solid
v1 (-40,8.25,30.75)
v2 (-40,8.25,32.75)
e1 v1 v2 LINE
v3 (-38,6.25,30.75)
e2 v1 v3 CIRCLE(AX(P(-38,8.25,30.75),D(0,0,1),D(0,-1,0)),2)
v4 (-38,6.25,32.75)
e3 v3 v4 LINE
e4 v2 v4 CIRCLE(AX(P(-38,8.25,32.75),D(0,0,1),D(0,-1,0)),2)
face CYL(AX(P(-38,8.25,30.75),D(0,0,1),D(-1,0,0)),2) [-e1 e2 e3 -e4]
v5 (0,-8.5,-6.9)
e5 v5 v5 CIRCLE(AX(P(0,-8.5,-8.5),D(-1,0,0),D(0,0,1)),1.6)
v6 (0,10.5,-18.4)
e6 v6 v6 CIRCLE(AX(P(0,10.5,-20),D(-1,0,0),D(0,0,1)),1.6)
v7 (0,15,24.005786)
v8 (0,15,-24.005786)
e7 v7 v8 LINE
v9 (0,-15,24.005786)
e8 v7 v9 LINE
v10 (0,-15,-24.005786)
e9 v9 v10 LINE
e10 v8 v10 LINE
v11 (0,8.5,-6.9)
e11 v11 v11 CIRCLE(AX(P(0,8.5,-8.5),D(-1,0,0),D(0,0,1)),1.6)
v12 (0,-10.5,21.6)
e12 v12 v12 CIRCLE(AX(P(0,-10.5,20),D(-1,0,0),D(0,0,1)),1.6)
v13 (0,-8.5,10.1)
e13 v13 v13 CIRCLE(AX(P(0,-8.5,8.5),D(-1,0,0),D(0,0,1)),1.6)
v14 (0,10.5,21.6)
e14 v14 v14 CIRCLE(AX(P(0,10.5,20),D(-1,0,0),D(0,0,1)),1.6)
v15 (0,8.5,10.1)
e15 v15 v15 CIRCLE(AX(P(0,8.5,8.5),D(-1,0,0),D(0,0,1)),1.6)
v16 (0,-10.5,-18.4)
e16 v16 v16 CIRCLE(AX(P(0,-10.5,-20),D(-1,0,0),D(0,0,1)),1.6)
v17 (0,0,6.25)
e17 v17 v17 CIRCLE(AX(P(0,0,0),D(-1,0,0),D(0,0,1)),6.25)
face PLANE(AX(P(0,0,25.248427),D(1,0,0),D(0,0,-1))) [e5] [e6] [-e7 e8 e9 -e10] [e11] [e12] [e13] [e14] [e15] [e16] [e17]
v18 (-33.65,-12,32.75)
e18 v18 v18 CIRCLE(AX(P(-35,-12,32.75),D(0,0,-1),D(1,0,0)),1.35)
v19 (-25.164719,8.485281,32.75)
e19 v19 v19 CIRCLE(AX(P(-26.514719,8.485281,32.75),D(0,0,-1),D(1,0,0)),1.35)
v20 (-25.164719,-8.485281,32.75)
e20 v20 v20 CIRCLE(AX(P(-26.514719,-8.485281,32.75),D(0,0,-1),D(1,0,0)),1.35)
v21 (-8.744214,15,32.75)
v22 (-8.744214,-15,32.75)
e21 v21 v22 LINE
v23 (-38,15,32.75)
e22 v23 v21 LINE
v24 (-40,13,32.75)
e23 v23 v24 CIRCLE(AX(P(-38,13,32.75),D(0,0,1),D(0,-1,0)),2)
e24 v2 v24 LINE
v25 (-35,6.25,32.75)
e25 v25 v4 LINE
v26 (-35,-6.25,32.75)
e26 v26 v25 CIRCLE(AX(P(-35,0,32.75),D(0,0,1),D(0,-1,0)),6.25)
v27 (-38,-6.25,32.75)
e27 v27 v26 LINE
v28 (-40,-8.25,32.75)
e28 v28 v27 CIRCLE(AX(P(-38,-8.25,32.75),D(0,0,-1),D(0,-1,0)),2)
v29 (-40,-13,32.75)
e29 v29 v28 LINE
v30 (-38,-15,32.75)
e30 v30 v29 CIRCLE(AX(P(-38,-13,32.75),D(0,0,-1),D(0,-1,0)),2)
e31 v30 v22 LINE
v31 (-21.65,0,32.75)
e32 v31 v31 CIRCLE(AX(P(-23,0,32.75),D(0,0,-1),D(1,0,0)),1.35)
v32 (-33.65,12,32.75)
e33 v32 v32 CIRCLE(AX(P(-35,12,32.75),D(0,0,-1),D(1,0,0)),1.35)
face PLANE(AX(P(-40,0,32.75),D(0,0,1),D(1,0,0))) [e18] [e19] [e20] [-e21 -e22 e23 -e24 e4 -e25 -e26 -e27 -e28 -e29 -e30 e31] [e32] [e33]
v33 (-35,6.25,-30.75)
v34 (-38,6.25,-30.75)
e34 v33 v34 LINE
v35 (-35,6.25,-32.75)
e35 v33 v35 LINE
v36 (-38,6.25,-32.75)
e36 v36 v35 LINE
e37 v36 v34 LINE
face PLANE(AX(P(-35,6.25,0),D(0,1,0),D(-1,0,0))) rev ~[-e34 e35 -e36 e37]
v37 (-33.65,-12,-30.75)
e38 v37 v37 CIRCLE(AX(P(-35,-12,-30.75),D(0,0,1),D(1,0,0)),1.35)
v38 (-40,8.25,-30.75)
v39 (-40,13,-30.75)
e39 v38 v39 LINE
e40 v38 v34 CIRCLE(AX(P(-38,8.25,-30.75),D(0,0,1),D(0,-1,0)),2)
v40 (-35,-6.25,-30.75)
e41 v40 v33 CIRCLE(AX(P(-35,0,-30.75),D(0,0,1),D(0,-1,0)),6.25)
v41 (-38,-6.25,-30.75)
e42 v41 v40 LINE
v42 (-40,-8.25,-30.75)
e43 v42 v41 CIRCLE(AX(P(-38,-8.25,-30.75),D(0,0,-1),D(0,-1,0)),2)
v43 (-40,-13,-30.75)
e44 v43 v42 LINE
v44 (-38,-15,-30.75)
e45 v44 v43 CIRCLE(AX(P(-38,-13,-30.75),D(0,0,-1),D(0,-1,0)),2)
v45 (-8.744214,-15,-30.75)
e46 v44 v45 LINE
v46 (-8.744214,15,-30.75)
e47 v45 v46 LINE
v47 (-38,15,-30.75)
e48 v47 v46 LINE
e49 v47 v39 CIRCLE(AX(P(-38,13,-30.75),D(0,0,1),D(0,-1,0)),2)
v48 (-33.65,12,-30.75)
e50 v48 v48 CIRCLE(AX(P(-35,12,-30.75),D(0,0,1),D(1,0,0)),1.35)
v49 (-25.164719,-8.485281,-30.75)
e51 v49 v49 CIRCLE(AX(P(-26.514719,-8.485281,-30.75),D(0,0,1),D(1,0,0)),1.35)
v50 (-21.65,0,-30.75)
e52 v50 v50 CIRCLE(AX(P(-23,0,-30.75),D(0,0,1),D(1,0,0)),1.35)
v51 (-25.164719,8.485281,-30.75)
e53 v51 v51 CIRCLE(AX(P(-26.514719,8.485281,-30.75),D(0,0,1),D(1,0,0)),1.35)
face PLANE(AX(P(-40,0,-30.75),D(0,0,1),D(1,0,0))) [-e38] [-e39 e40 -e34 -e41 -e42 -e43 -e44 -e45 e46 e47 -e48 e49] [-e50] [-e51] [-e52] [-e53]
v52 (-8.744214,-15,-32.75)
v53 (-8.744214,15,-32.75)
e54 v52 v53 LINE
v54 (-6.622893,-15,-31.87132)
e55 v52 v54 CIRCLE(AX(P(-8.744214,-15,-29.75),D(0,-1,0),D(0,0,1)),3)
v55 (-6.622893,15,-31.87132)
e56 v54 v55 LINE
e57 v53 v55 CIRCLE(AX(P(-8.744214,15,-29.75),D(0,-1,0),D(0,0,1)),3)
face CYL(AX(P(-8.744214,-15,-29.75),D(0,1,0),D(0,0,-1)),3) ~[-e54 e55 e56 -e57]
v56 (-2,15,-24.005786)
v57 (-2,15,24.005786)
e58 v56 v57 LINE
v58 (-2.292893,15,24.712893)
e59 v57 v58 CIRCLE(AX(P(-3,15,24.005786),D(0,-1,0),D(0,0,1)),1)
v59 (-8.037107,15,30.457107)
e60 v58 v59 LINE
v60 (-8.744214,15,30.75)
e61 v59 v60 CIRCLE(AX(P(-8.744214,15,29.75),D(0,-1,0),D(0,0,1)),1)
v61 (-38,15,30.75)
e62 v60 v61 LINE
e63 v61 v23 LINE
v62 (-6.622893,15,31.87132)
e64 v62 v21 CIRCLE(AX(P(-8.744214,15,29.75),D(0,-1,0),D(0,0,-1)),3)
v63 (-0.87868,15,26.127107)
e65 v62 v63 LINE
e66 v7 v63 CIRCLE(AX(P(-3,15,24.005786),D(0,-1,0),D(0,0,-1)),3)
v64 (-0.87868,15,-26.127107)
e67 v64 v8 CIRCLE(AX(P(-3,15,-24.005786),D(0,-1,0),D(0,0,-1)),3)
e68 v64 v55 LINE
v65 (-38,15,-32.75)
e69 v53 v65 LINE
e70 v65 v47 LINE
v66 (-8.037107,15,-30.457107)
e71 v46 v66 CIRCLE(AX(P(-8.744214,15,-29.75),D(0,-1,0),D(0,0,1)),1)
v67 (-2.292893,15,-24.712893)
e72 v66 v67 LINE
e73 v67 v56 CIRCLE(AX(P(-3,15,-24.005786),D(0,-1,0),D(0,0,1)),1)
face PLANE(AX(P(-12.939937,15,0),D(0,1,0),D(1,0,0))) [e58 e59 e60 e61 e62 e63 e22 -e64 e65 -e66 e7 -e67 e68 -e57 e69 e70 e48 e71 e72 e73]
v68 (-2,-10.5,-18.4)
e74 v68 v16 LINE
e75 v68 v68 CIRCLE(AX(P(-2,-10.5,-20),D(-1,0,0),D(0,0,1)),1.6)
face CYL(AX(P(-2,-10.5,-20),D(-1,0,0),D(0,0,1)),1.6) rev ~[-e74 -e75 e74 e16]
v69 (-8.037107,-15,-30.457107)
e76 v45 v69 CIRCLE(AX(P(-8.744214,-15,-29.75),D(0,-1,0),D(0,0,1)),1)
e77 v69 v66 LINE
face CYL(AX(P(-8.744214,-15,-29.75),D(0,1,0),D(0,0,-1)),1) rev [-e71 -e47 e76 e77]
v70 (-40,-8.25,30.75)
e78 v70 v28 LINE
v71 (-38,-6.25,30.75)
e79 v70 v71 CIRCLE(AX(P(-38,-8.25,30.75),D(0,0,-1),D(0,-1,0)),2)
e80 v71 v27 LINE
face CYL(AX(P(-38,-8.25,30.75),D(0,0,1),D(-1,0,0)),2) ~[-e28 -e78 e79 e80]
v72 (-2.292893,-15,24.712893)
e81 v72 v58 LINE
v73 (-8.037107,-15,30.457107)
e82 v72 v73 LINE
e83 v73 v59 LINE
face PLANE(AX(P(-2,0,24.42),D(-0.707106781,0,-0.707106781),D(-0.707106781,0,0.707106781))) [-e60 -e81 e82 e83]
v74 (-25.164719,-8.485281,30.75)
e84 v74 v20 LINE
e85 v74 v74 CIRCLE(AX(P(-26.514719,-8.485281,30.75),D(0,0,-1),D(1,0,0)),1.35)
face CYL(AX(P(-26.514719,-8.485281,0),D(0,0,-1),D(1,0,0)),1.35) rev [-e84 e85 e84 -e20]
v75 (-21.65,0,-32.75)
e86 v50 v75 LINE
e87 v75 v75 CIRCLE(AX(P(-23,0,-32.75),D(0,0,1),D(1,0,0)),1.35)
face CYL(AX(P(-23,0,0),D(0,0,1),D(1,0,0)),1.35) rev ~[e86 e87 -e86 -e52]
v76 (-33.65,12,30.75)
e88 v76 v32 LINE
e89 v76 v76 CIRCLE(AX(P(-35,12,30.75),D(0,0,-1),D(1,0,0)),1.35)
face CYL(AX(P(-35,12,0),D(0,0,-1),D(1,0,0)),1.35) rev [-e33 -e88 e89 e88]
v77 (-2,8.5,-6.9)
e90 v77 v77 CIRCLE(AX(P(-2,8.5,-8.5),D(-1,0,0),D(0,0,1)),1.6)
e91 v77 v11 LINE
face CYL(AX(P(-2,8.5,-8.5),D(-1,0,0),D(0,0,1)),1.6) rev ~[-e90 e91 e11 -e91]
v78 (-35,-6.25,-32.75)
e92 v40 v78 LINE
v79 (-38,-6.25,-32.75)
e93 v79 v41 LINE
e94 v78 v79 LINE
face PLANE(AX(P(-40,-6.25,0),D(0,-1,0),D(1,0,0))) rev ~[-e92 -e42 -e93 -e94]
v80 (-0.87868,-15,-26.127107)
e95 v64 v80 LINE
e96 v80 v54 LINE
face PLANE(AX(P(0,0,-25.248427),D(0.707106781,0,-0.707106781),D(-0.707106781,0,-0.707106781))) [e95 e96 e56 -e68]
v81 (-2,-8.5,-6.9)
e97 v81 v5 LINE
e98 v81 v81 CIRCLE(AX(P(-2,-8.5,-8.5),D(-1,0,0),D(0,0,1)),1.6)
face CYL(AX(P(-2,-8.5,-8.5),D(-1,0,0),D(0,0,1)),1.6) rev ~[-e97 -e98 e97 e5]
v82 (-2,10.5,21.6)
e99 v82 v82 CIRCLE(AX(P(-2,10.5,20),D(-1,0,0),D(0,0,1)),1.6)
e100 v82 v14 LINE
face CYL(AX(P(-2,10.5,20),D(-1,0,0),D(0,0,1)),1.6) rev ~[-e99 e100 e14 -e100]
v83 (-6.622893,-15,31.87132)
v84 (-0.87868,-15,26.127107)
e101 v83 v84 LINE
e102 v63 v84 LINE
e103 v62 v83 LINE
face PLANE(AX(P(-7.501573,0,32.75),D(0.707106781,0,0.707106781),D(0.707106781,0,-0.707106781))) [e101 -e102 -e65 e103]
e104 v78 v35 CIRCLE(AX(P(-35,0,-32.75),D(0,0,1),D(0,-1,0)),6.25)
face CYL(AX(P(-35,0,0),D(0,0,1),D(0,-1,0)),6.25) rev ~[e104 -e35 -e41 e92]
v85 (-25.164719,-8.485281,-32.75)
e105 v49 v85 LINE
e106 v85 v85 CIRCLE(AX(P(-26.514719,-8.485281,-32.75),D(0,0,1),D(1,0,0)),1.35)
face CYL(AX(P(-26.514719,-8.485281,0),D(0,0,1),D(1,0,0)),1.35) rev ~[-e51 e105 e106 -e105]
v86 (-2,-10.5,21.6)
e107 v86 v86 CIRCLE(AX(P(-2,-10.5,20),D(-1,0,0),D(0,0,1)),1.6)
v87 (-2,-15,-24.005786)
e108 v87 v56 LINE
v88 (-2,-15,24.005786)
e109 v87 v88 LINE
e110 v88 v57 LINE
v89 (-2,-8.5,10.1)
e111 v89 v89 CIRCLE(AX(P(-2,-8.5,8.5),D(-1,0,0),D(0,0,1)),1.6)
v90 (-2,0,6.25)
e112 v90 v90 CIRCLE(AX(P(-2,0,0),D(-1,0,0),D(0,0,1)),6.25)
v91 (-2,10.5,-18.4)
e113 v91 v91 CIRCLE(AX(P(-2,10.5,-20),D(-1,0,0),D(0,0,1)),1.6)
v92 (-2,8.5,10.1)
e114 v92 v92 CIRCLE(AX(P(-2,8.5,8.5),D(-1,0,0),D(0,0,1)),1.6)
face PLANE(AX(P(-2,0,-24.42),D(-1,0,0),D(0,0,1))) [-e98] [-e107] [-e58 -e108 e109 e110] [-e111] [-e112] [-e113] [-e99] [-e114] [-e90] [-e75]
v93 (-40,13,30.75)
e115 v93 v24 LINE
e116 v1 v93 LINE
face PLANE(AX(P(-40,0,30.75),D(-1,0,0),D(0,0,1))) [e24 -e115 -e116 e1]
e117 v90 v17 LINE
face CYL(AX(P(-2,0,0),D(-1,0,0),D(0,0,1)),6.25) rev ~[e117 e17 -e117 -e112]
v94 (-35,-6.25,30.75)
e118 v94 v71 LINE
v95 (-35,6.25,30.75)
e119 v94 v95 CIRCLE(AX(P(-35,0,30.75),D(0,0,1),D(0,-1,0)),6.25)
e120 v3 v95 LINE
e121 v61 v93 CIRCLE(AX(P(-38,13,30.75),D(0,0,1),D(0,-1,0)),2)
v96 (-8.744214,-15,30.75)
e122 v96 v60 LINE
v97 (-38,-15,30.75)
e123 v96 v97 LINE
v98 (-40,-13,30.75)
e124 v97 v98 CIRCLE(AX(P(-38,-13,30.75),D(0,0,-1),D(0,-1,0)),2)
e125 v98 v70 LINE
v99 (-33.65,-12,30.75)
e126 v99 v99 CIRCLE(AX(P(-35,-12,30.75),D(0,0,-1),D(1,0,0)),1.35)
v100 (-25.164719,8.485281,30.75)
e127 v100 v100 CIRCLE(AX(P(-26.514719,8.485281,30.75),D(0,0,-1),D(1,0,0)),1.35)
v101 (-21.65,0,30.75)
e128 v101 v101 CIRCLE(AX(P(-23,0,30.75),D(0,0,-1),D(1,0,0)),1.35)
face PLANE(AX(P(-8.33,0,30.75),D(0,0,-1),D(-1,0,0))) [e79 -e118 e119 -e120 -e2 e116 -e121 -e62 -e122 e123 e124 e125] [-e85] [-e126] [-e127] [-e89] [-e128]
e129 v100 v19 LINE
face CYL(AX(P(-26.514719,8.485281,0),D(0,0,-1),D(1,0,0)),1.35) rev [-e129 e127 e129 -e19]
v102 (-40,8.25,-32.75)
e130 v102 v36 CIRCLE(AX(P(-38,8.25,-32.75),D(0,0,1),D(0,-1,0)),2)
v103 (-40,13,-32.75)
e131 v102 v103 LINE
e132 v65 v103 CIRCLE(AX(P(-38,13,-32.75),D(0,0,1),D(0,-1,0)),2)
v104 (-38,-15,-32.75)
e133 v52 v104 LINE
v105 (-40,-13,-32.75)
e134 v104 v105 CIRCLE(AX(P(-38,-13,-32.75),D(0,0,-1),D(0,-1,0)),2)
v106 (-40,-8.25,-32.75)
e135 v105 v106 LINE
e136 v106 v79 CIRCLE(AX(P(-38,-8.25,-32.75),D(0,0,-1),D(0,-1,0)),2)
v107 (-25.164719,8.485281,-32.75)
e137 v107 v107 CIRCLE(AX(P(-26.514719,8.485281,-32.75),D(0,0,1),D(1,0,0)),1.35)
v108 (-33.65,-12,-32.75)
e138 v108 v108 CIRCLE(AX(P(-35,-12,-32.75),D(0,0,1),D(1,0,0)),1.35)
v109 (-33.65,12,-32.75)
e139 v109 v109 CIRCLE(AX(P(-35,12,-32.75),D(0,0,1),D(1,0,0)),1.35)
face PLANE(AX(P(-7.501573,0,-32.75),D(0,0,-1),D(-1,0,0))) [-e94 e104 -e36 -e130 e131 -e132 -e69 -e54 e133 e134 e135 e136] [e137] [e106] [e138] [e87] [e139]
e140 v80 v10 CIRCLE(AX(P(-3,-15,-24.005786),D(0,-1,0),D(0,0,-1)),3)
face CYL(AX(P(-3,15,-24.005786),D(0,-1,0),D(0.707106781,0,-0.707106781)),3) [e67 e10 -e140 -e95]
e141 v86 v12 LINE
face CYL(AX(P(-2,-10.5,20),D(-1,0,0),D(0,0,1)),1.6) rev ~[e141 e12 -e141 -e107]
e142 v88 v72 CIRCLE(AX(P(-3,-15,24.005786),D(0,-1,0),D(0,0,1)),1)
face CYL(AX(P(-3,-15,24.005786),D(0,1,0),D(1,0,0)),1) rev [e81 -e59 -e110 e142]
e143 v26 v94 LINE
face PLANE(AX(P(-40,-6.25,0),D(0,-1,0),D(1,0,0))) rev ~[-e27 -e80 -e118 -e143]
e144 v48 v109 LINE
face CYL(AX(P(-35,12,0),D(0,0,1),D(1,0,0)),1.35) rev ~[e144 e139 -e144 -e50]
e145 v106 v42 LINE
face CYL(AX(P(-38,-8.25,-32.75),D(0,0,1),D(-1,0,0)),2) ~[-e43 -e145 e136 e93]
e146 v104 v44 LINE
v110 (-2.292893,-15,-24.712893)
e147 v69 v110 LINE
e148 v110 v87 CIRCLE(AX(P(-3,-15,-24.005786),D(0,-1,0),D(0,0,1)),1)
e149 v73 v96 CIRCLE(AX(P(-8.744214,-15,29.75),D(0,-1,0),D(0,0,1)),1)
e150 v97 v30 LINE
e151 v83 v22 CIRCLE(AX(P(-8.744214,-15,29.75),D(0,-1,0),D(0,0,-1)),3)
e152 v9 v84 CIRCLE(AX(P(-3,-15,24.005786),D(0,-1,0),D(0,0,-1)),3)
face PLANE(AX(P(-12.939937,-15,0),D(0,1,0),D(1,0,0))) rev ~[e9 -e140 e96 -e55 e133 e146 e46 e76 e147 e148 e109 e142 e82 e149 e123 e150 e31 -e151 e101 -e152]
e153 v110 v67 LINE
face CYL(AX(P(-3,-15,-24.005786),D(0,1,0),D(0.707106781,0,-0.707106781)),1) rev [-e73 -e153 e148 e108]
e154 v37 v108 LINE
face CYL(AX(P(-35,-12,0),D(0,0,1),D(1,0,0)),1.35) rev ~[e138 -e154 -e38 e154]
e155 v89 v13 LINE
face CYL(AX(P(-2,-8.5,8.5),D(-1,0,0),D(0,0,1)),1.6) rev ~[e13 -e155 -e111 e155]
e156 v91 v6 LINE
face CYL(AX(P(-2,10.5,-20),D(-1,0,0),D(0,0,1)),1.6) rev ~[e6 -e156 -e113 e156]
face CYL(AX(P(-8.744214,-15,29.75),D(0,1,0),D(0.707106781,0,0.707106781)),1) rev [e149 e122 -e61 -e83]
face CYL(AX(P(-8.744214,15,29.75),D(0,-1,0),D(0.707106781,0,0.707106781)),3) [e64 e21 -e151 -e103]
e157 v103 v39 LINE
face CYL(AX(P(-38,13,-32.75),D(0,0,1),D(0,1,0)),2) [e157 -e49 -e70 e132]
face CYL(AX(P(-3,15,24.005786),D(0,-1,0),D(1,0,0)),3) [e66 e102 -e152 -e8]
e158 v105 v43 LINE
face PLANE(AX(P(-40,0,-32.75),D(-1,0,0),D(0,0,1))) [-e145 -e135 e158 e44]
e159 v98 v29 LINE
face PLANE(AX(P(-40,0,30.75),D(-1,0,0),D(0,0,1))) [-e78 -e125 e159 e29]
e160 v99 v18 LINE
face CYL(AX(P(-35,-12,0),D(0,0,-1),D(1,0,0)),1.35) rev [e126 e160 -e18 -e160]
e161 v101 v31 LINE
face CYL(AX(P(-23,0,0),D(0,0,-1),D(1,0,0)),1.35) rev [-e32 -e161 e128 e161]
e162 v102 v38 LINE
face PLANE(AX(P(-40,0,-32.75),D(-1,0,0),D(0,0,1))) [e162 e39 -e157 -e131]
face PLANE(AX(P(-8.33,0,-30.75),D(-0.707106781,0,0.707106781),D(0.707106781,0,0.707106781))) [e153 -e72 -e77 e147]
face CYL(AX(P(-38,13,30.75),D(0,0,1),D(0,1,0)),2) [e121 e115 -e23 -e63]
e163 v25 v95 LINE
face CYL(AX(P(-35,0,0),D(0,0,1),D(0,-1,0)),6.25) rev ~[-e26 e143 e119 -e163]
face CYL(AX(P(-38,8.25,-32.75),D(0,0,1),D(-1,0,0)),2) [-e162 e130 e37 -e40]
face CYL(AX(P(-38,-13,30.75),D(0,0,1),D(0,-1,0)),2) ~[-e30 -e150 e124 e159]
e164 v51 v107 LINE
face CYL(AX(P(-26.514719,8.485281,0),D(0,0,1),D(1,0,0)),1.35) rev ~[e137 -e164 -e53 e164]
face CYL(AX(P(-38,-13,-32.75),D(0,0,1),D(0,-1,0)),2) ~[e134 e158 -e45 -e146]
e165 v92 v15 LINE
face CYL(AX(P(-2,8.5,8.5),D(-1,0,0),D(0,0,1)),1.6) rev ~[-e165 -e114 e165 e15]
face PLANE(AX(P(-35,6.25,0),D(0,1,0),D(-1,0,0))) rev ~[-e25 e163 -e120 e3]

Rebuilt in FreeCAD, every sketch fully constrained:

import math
import FreeCAD as App
import Part
import Sketcher

V = App.Vector


def edges_at(feature, points):
    """Names of the edges that pass closest to the given points."""
    edges = feature.Shape.Edges
    near = lambda p: min(range(len(edges)), key=lambda i: edges[i].distToShape(Part.Vertex(*p))[0])
    return sorted({f"Edge{near(p) + 1}" for p in points})


def add_polygon(sketch, points):
    """Adds a closed chain of lines whose ends are joined by coincident constraints."""
    first, n = sketch.GeometryCount, len(points)
    for a, b in zip(points, points[1:] + points[:1]):
        sketch.addGeometry(Part.LineSegment(App.Vector(*a, 0), App.Vector(*b, 0)), False)
    for i in range(n):
        sketch.addConstraint(Sketcher.Constraint("Coincident", first + i, 2, first + (i + 1) % n, 1))

doc = App.newDocument("Part")
body = doc.addObject("PartDesign::Body", "Body")

sketch1 = body.newObject("Sketcher::SketchObject", "Sketch")
sketch1.AttachmentSupport = (doc.getObject("XZ_Plane"), [""])
sketch1.MapMode = "FlatFace"
add_polygon(sketch1, [(0, -25.2), (-7.5, -32.8), (-40, -32.8), (-40, -30.8), (-8.3, -30.8), (-2, -24.4), (-2, 24.4), (-8.3, 30.8), (-40, 30.8), (-40, 32.8), (-7.5, 32.8), (0, 25.2)])
sketch1.addConstraint([
    Sketcher.Constraint("Horizontal", 1),
    Sketcher.Constraint("Vertical", 2),
    Sketcher.Constraint("Horizontal", 3),
    Sketcher.Constraint("Vertical", 5),
    Sketcher.Constraint("Horizontal", 7),
    Sketcher.Constraint("Vertical", 8),
    Sketcher.Constraint("Horizontal", 9),
    Sketcher.Constraint("Vertical", 11),
    Sketcher.Constraint("Symmetric", 10, 2, 11, 2, -1, 1),
    Sketcher.Constraint("Symmetric", 3, 2, 6, 2, -1),
    Sketcher.Constraint("Symmetric", 1, 2, 8, 2, -1),
    Sketcher.Constraint("Parallel", 0, 4),
    Sketcher.Constraint("Perpendicular", 4, 6),
    Sketcher.Constraint("Parallel", 6, 10),
    Sketcher.Constraint("Vertical", 0, 2, 9, 2),
    Sketcher.Constraint("DistanceY", 2, 1, 2, 2, 2.0),
    Sketcher.Constraint("DistanceX", 1, 2, -1, 1, 40.0),
    Sketcher.Constraint("DistanceX", 4, 2, -1, 1, 2.0),
    Sketcher.Constraint("DistanceX", 3, 1, 3, 2, 31.67),
    Sketcher.Constraint("DistanceY", 5, 1, 5, 2, 48.84),
    Sketcher.Constraint("DistanceX", 1, 2, 1, 1, 32.498427),
])
pad1 = body.newObject("PartDesign::Pad", "Pad")
pad1.Profile = sketch1
pad1.Length = 30
pad1.Midplane = True

sketch2 = body.newObject("Sketcher::SketchObject", "Sketch001")
sketch2.AttachmentSupport = (doc.getObject("YZ_Plane"), [""])
sketch2.MapMode = "FlatFace"
sketch2.AttachmentOffset = App.Placement(V(0, 0, -2), App.Rotation())
sketch2.addGeometry([
    Part.Circle(V(10.5, -20, 0), V(0, 0, 1), 1.6),
    Part.Circle(V(8.5, -8.5, 0), V(0, 0, 1), 1.6),
    Part.Circle(V(8.5, 8.5, 0), V(0, 0, 1), 1.6),
    Part.Circle(V(10.5, 20, 0), V(0, 0, 1), 1.6),
    Part.Circle(V(-10.5, 20, 0), V(0, 0, 1), 1.6),
    Part.Circle(V(-8.5, 8.5, 0), V(0, 0, 1), 1.6),
    Part.Circle(V(-8.5, -8.5, 0), V(0, 0, 1), 1.6),
    Part.Circle(V(-10.5, -20, 0), V(0, 0, 1), 1.6),
    Part.Circle(V(0, 0, 0), V(0, 0, 1), 6.2),
], False)
sketch2.addConstraint([
    Sketcher.Constraint("Coincident", 8, 3, -1, 1),
    Sketcher.Constraint("Equal", 0, 1),
    Sketcher.Constraint("Equal", 1, 2),
    Sketcher.Constraint("Equal", 2, 3),
    Sketcher.Constraint("Equal", 3, 4),
    Sketcher.Constraint("Equal", 4, 5),
    Sketcher.Constraint("Equal", 5, 6),
    Sketcher.Constraint("Equal", 6, 7),
    Sketcher.Constraint("Symmetric", 0, 3, 4, 3, -1, 1),
    Sketcher.Constraint("Symmetric", 1, 3, 5, 3, -1, 1),
    Sketcher.Constraint("Symmetric", 2, 3, 6, 3, -1, 1),
    Sketcher.Constraint("Symmetric", 3, 3, 7, 3, -1, 1),
    Sketcher.Constraint("Symmetric", 3, 3, 4, 3, -2),
    Sketcher.Constraint("Symmetric", 2, 3, 5, 3, -2),
    Sketcher.Constraint("Diameter", 0, 3.2),
    Sketcher.Constraint("Diameter", 8, 12.5),
    Sketcher.Constraint("DistanceY", 0, 3, -1, 1, 20.0),
    Sketcher.Constraint("DistanceX", 1, 3, 0, 3, 2.0),
    Sketcher.Constraint("DistanceY", 1, 3, 2, 3, 17.0),
    Sketcher.Constraint("DistanceX", 4, 3, 3, 3, 21.0),
])
pocket1 = body.newObject("PartDesign::Pocket", "Pocket")
pocket1.Profile = sketch2
pocket1.Length = 2
pocket1.Reversed = True

sketch3 = body.newObject("Sketcher::SketchObject", "Sketch002")
sketch3.AttachmentSupport = (doc.getObject("XY_Plane"), [""])
sketch3.MapMode = "FlatFace"
sketch3.addGeometry([
    Part.Circle(V(-23, 0, 0), V(0, 0, 1), 1.4),
    Part.Circle(V(-26.5, -8.5, 0), V(0, 0, 1), 1.4),
    Part.Circle(V(-35, -12, 0), V(0, 0, 1), 1.4),
    Part.Circle(V(-35, 12, 0), V(0, 0, 1), 1.4),
    Part.Circle(V(-26.5, 8.5, 0), V(0, 0, 1), 1.4),
    Part.LineSegment(V(-35, 6.2, 0), V(-40, 6.2, 0)),
    Part.LineSegment(V(-40, 6.2, 0), V(-40, -6.2, 0)),
    Part.LineSegment(V(-40, -6.2, 0), V(-35, -6.2, 0)),
    Part.ArcOfCircle(Part.Circle(V(-35, 0, 0), V(0, 0, 1), 6.2), math.radians(-90), math.radians(90)),
], False)
sketch3.addConstraint([
    Sketcher.Constraint("Coincident", 5, 2, 6, 1),
    Sketcher.Constraint("Coincident", 6, 2, 7, 1),
    Sketcher.Constraint("Tangent", 7, 2, 8, 1),
    Sketcher.Constraint("Tangent", 8, 2, 5, 1),
    Sketcher.Constraint("Horizontal", 5),
    Sketcher.Constraint("Vertical", 6),
    Sketcher.Constraint("Horizontal", 7),
    Sketcher.Constraint("Equal", 0, 1),
    Sketcher.Constraint("Equal", 1, 2),
    Sketcher.Constraint("Equal", 2, 3),
    Sketcher.Constraint("Equal", 3, 4),
    Sketcher.Constraint("Symmetric", 2, 3, 3, 3, -1),
    Sketcher.Constraint("Symmetric", 1, 3, 4, 3, -1),
    Sketcher.Constraint("PointOnObject", 0, 3, -1),
    Sketcher.Constraint("PointOnObject", 8, 3, -1),
    Sketcher.Constraint("Vertical", 3, 3, 8, 3),
    Sketcher.Constraint("Diameter", 0, 2.7),
    Sketcher.Constraint("DistanceX", 5, 2, 5, 1, 5.0),
    Sketcher.Constraint("Radius", 8, 6.25),
    Sketcher.Constraint("DistanceX", 0, 3, -1, 1, 23.0),
    Sketcher.Constraint("DistanceX", 2, 3, -1, 1, 35.0),
    Sketcher.Constraint("DistanceY", 2, 3, -1, 1, 12.0),
    Sketcher.Constraint("DistanceX", 1, 3, -1, 1, 26.514719),
    Sketcher.Constraint("DistanceY", 1, 3, -1, 1, 8.485281),
])
pocket2 = body.newObject("PartDesign::Pocket", "Pocket001")
pocket2.Profile = sketch3
pocket2.Length = 74
pocket2.Midplane = True
doc.recompute()

fillet = body.newObject("PartDesign::Fillet", "Fillet")
fillet.Base = (pocket2, edges_at(pocket2, [
    (-40, -6.25, -31.75),
    (-40, -6.25, 31.75),
    (-40, 6.25, -31.75),
    (-40, 6.25, 31.75),
    (-40, -15, 31.75),
    (-40, -15, -31.75),
    (-40, 15, -31.75),
    (-40, 15, 31.75),
]))
fillet.Radius = 2
doc.recompute()

fillet2 = body.newObject("PartDesign::Fillet", "Fillet001")
fillet2.Base = (fillet, edges_at(fillet, [
    (-8.33, 0, 30.75),
    (-2, 0, 24.42),
    (-2, 0, -24.42),
    (-8.33, 0, -30.75),
]))
fillet2.Radius = 1
doc.recompute()

fillet3 = body.newObject("PartDesign::Fillet", "Fillet002")
fillet3.Base = (fillet2, edges_at(fillet2, [
    (0, 0, 25.248),
    (-7.502, 0, 32.75),
    (-7.502, 0, -32.75),
    (0, 0, -25.248),
]))
fillet3.Radius = 3

doc.recompute()
